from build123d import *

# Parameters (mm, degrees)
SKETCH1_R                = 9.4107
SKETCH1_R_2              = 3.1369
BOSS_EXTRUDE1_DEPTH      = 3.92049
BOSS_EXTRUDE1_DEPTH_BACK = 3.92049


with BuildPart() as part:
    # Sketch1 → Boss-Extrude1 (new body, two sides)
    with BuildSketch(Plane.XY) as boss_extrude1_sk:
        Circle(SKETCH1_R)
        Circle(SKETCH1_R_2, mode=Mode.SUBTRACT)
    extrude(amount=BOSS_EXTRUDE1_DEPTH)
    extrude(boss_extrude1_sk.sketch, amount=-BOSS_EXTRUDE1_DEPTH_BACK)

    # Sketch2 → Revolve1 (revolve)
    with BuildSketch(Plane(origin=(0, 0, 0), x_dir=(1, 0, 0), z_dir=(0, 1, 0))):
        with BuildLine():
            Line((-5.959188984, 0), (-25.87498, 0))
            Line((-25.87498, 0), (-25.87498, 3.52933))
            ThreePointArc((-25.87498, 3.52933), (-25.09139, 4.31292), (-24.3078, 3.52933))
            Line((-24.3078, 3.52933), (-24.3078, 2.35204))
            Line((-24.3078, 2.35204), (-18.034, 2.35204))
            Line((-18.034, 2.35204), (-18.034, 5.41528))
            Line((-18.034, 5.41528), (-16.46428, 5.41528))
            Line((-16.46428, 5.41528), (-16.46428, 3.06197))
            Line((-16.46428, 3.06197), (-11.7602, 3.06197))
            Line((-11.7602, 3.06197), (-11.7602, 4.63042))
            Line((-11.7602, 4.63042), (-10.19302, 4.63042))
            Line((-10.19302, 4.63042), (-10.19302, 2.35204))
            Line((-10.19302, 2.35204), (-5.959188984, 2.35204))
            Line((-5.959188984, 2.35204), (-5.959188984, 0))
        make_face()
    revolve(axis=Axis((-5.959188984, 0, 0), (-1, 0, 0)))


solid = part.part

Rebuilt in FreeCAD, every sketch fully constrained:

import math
import FreeCAD as App
import Part
import Sketcher
from FreeCAD import Vector
Q = App.Units.Quantity

doc = App.newDocument("Part")
params = doc.addObject("Spreadsheet::Sheet", "Params")
for row, (alias, value) in enumerate([
    ("sketch1_diameter", "0.741 in"),
    ("sketch1_diameter2", "0.247 in"),
    ("pad1_length", "3.92049 mm"),
    ("pad1_length2", "3.92049 mm"),
    ("sketch2_width", "0.247 in"),
    ("revolution_angle", "360 deg"),
], start=1):
    params.set(f"A{row}", alias)
    params.set(f"B{row}", "=" + value)
    params.setAlias(f"B{row}", alias)

body = doc.addObject("PartDesign::Body", "Body")

# Sketch on XY plane
sketch1 = doc.addObject("Sketcher::SketchObject", "Sketch")
body.addObject(sketch1)
sketch1.AttachmentSupport = (doc.XY_Plane, [""])
sketch1.MapMode = "FlatFace"
sketch1.addGeometry([
    Part.Circle(Vector(0, 0, 0), Vector(0, 0, 1), 9.4),
    Part.Circle(Vector(0, 0, 0), Vector(0, 0, 1), 3.1),
], False)
sketch1.addConstraint([
    Sketcher.Constraint("Coincident", 0, 3, -1, 1),
    Sketcher.Constraint("Coincident", 1, 3, -1, 1),
    Sketcher.Constraint("Diameter", 0, Q("0.741 in")),
    Sketcher.Constraint("Diameter", 1, Q("0.247 in")),
])
sketch1.setExpression("Constraints[2]", "Params.sketch1_diameter")
sketch1.setExpression("Constraints[3]", "Params.sketch1_diameter2")
pad1 = doc.addObject("PartDesign::Pad", "Pad")
body.addObject(pad1)
pad1.Profile = sketch1
pad1.Type = "TwoLengths"
pad1.setExpression("Length", "Params.pad1_length")
pad1.setExpression("Length2", "Params.pad1_length2")

# Sketch on XZ plane
sketch2 = doc.addObject("Sketcher::SketchObject", "Sketch001")
body.addObject(sketch2)
sketch2.AttachmentSupport = (doc.XZ_Plane, [""])
sketch2.MapMode = "FlatFace"
sketch2.addGeometry([
    Part.LineSegment(Vector(-25.9, 0, 0), Vector(-6, 0, 0)),  # 0
    Part.LineSegment(Vector(-6, 0, 0), Vector(-6, -2.4, 0)),  # 1
    Part.LineSegment(Vector(-6, -2.4, 0), Vector(-10.2, -2.4, 0)),  # 2
    Part.LineSegment(Vector(-10.2, -2.4, 0), Vector(-10.2, -4.6, 0)),  # 3
    Part.LineSegment(Vector(-10.2, -4.6, 0), Vector(-11.8, -4.6, 0)),  # 4
    Part.LineSegment(Vector(-11.8, -4.6, 0), Vector(-11.8, -3.1, 0)),  # 5
    Part.LineSegment(Vector(-11.8, -3.1, 0), Vector(-16.5, -3.1, 0)),  # 6
    Part.LineSegment(Vector(-16.5, -3.1, 0), Vector(-16.5, -5.4, 0)),  # 7
    Part.LineSegment(Vector(-16.5, -5.4, 0), Vector(-18, -5.4, 0)),  # 8
    Part.LineSegment(Vector(-18, -5.4, 0), Vector(-18, -2.4, 0)),  # 9
    Part.LineSegment(Vector(-18, -2.4, 0), Vector(-24.3, -2.4, 0)),  # 10
    Part.LineSegment(Vector(-24.3, -2.4, 0), Vector(-24.3, -3.5, 0)),  # 11
    Part.ArcOfCircle(Part.Circle(Vector(-25.1, -3.5, 0), Vector(0, 0, 1), 0.8), math.radians(180), math.radians(360)),  # 12
    Part.LineSegment(Vector(-25.9, -3.5, 0), Vector(-25.9, 0, 0)),  # 13
], False)
sketch2.addConstraint([
    Sketcher.Constraint("Coincident", 0, 2, 1, 1),
    Sketcher.Constraint("Coincident", 1, 2, 2, 1),
    Sketcher.Constraint("Coincident", 2, 2, 3, 1),
    Sketcher.Constraint("Coincident", 3, 2, 4, 1),
    Sketcher.Constraint("Coincident", 4, 2, 5, 1),
    Sketcher.Constraint("Coincident", 5, 2, 6, 1),
    Sketcher.Constraint("Coincident", 6, 2, 7, 1),
    Sketcher.Constraint("Coincident", 7, 2, 8, 1),
    Sketcher.Constraint("Coincident", 8, 2, 9, 1),
    Sketcher.Constraint("Coincident", 9, 2, 10, 1),
    Sketcher.Constraint("Coincident", 10, 2, 11, 1),
    Sketcher.Constraint("Tangent", 11, 2, 12, 2),
    Sketcher.Constraint("Tangent", 12, 1, 13, 1),
    Sketcher.Constraint("Coincident", 13, 2, 0, 1),
    Sketcher.Constraint("Horizontal", 0),
    Sketcher.Constraint("Vertical", 1),
    Sketcher.Constraint("Horizontal", 2),
    Sketcher.Constraint("Vertical", 3),
    Sketcher.Constraint("Horizontal", 4),
    Sketcher.Constraint("Vertical", 5),
    Sketcher.Constraint("Horizontal", 6),
    Sketcher.Constraint("Vertical", 7),
    Sketcher.Constraint("Horizontal", 8),
    Sketcher.Constraint("Vertical", 9),
    Sketcher.Constraint("Horizontal", 10),
    Sketcher.Constraint("Vertical", 11),
    Sketcher.Constraint("Vertical", 13),
    Sketcher.Constraint("PointOnObject", 0, 2, -1),
    Sketcher.Constraint("Horizontal", 2, 2, 9, 2),
    Sketcher.Constraint("DistanceX", 10, 2, 10, 1, Q("0.247 in")),
    Sketcher.Constraint("DistanceX", 8, 2, -1, 1, Q("0.71 in")),
    Sketcher.Constraint("DistanceX", 4, 2, 4, 1, Q("0.0617 in")),
    Sketcher.Constraint("DistanceX", 6, 2, 6, 1, Q("0.1852 in")),
    Sketcher.Constraint("DistanceX", 8, 2, 8, 1, Q("0.0618 in")),
    Sketcher.Constraint("DistanceY", 1, 2, 1, 1, Q("0.0926 in")),
    Sketcher.Constraint("DistanceY", 3, 2, 3, 1, Q("0.0897 in")),
    Sketcher.Constraint("DistanceY", 9, 1, 9, 2, Q("0.1206 in")),
    Sketcher.Constraint("Radius", 12, 0.78359),
    Sketcher.Constraint("DistanceY", 12, 3, 6, 2, Q("0.0184 in")),
    Sketcher.Constraint("DistanceX", 0, 1, 0, 2, 19.915791),
    Sketcher.Constraint("DistanceY", 5, 1, 5, 2, 1.56845),
])
sketch2.setExpression("Constraints[29]", "Params.sketch2_width")
revolution = doc.addObject("PartDesign::Revolution", "Revolution")
body.addObject(revolution)
revolution.Profile = sketch2
revolution.ReferenceAxis = (sketch2, ["H_Axis"])
revolution.setExpression("Angle", "Params.revolution_angle")

doc.recompute()
